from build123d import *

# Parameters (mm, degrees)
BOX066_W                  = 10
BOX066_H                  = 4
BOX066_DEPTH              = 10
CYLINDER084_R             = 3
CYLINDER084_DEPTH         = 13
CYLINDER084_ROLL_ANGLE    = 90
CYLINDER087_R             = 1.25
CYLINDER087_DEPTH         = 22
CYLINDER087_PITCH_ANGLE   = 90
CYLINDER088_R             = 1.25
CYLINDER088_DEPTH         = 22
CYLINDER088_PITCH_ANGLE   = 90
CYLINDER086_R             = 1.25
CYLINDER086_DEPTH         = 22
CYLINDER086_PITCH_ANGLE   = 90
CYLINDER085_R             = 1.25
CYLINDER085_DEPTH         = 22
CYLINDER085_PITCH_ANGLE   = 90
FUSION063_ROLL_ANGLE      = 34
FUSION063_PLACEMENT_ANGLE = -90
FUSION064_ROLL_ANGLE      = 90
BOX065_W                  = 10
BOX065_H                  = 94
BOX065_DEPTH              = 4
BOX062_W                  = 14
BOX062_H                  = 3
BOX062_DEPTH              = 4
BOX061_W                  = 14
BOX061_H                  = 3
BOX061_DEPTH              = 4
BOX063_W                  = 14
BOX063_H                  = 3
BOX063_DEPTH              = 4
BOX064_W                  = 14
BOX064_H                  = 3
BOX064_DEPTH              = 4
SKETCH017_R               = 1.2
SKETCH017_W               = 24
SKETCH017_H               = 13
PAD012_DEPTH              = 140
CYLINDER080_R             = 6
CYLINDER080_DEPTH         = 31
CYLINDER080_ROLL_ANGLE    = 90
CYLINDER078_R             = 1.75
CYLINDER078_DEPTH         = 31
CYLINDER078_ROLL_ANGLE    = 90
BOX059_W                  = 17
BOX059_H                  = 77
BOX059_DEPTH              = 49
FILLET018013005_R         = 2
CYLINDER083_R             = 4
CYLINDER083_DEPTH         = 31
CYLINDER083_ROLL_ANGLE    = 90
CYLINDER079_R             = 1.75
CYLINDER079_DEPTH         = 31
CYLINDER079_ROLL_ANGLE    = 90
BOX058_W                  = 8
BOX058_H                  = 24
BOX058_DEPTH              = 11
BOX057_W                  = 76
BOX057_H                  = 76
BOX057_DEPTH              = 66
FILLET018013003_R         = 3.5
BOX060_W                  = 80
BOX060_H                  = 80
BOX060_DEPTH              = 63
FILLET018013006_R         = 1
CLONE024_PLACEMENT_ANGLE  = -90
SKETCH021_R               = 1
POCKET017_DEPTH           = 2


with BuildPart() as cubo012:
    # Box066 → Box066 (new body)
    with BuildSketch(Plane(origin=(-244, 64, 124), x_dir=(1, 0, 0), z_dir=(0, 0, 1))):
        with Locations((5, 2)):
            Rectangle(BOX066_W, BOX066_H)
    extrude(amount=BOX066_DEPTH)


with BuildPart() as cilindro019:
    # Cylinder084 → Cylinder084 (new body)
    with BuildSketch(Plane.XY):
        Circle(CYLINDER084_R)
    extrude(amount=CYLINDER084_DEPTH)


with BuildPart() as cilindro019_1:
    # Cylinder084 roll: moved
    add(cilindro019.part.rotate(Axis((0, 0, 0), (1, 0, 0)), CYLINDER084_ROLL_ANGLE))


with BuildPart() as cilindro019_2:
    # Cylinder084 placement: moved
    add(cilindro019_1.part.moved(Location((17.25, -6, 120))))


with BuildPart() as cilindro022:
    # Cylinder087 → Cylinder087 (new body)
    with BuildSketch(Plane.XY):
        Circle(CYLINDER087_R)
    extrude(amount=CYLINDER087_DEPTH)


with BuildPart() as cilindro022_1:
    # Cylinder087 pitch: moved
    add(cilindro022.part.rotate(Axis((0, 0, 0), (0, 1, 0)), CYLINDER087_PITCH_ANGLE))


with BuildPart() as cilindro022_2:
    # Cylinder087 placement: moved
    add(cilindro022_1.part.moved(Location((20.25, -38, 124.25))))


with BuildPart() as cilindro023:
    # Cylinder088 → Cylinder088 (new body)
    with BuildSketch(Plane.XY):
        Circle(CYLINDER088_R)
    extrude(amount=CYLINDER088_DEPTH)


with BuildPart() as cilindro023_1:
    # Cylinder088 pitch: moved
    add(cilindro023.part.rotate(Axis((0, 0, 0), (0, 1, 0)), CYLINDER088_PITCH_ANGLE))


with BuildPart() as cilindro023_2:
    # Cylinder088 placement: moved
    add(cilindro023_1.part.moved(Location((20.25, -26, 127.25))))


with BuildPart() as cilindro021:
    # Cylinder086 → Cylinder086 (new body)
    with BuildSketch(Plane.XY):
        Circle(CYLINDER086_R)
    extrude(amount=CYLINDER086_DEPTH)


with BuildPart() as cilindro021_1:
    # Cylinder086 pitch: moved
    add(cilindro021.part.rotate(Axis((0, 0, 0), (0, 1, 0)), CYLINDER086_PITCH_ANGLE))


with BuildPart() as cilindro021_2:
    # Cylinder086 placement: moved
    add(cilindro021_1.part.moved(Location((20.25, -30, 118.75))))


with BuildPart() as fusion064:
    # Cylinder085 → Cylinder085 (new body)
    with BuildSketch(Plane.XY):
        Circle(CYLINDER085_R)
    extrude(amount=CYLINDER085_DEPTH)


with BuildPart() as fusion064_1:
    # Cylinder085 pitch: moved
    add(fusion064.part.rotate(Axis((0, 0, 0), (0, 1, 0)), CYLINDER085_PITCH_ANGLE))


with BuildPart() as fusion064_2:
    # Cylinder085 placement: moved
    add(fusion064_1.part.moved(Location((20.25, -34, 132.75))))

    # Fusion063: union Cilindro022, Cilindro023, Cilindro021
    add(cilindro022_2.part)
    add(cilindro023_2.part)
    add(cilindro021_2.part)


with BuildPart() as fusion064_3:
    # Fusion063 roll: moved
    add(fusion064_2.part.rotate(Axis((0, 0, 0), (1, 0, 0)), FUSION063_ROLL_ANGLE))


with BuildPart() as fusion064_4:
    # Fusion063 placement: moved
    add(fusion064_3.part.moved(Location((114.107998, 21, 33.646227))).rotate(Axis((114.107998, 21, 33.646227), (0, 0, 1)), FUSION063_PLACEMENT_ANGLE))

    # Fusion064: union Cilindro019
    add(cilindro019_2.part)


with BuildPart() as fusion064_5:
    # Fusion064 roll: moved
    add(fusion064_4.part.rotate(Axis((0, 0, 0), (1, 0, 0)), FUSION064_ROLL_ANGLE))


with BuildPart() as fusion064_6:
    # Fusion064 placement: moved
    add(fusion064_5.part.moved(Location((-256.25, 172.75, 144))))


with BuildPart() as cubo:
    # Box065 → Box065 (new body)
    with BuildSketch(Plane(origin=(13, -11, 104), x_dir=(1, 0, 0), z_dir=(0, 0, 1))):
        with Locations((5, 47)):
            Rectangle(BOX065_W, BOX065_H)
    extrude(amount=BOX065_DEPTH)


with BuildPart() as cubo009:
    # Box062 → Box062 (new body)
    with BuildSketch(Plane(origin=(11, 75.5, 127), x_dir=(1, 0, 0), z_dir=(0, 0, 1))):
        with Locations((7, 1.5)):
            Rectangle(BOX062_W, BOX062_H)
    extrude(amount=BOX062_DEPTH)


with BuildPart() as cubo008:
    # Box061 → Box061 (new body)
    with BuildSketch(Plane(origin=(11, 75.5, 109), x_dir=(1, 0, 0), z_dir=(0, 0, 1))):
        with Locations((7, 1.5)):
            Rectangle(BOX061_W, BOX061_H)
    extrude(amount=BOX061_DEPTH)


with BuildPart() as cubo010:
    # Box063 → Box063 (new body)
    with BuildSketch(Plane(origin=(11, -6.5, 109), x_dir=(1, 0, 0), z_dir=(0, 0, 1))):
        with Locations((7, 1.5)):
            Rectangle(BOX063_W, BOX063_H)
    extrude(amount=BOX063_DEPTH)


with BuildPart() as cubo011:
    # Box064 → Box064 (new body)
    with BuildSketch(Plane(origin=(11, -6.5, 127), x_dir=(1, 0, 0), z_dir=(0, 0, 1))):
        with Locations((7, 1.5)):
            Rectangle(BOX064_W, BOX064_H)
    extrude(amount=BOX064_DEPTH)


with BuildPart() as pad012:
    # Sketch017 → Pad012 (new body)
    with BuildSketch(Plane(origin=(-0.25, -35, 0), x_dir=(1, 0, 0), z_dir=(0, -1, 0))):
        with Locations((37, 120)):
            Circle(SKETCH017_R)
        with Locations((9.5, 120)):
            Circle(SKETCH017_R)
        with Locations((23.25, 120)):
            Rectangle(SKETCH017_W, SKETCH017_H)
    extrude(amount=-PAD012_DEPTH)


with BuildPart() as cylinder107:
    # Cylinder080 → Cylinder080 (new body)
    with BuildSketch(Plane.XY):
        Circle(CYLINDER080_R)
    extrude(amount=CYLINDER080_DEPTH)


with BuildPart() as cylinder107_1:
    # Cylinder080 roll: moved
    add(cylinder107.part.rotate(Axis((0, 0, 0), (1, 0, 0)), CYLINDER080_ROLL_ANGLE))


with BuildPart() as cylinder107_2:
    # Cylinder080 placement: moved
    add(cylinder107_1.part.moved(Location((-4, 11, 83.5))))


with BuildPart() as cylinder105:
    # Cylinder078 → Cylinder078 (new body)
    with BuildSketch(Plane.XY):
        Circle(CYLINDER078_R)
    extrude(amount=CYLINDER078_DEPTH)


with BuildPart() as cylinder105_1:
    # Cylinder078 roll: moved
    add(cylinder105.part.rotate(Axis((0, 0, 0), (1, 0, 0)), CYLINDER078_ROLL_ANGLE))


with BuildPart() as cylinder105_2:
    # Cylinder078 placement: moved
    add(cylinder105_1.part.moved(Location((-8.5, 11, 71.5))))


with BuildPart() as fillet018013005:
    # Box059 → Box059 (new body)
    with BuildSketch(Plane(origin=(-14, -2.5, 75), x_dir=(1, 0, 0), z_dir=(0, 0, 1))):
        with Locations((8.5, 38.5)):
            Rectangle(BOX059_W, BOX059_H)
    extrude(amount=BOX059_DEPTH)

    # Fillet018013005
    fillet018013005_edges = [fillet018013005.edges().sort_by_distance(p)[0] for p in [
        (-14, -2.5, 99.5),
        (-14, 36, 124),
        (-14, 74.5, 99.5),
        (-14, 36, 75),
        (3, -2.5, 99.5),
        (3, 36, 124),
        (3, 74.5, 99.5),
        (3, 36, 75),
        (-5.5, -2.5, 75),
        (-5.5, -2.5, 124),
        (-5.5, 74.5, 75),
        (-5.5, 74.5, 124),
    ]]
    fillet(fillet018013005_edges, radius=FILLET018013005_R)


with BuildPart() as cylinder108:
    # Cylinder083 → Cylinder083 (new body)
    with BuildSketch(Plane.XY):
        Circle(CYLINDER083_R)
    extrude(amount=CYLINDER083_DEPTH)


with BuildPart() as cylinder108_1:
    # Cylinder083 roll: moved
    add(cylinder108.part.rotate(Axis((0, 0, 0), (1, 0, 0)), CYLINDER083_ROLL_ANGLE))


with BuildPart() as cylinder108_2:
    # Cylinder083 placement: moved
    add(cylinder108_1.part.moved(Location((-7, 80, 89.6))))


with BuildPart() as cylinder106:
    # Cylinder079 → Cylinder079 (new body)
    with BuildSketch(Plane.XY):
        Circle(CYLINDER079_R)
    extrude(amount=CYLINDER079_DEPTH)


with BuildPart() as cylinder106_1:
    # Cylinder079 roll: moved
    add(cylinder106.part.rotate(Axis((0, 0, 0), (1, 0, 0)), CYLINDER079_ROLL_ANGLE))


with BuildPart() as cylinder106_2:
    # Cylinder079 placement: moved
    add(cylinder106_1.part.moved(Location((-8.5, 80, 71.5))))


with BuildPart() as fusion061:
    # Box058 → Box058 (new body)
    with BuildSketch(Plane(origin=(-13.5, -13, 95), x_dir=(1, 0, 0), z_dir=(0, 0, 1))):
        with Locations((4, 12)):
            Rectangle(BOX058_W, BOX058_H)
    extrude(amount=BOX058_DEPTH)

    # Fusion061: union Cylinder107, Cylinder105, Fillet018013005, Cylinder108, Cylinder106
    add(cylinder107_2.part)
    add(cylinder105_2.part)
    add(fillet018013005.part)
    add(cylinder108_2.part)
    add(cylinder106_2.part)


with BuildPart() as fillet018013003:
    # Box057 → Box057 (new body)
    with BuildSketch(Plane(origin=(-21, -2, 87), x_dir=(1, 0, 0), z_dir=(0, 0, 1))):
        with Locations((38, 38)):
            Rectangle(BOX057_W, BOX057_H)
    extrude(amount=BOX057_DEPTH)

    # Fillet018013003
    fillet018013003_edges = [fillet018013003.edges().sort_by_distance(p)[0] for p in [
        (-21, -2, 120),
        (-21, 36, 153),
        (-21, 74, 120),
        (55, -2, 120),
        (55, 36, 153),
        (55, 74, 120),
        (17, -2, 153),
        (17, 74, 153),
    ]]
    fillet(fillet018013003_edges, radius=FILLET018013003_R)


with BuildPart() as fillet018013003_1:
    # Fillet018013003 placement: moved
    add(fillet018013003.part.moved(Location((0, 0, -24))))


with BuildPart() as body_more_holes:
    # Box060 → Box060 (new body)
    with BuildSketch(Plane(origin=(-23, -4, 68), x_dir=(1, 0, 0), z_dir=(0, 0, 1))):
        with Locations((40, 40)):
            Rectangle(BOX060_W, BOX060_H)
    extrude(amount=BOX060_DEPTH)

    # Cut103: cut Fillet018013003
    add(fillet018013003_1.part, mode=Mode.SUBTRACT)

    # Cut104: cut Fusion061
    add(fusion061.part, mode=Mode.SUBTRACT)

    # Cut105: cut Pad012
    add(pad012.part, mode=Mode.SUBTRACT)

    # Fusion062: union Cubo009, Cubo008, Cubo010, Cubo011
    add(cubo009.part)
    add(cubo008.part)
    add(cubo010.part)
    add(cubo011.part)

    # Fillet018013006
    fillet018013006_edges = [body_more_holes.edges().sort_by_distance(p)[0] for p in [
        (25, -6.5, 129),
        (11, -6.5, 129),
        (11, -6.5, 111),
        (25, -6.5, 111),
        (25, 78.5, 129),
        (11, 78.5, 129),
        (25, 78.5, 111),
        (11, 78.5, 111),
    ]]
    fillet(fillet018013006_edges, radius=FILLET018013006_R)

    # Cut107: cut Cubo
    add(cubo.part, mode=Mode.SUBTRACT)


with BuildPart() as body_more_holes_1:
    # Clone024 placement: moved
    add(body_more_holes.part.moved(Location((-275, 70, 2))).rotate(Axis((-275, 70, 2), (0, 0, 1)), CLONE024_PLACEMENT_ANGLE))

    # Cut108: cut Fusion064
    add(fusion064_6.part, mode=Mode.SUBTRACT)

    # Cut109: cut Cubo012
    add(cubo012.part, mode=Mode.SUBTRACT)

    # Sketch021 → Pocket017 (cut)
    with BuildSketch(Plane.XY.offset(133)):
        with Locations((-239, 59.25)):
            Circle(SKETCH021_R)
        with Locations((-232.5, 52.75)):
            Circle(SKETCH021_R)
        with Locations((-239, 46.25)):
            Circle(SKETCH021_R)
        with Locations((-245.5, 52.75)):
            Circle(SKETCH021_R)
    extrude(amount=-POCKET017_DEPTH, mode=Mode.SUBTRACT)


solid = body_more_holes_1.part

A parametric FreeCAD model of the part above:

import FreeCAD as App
import Part
import Sketcher
from FreeCAD import Vector


def edges_at(feature, points):
    """Names of the edges that pass closest to the given points."""
    edges = feature.Shape.Edges
    near = lambda p: min(range(len(edges)), key=lambda i: edges[i].distToShape(Part.Vertex(*p))[0])
    return sorted({f"Edge{near(p) + 1}" for p in points})


def add_polygon(sketch, points):
    """Adds a closed chain of lines whose ends are joined by coincident constraints."""
    first, n = sketch.GeometryCount, len(points)
    for a, b in zip(points, points[1:] + points[:1]):
        sketch.addGeometry(Part.LineSegment(App.Vector(*a, 0), App.Vector(*b, 0)), False)
    for i in range(n):
        sketch.addConstraint(Sketcher.Constraint("Coincident", first + i, 2, first + (i + 1) % n, 1))

doc = App.newDocument("Part")
params = doc.addObject("Spreadsheet::Sheet", "Params")
for row, (alias, value) in enumerate([
    ("sketch1_width", "10 mm"),
    ("sketch1_height", "4 mm"),
    ("pad1_length", "10 mm"),
    ("sketch2_diameter", "6 mm"),
    ("pad2_length", "13 mm"),
    ("sketch3_diameter", "2.5 mm"),
    ("pad3_length", "22 mm"),
    ("sketch4_diameter", "2.5 mm"),
    ("pad4_length", "22 mm"),
    ("sketch5_diameter", "2.5 mm"),
    ("pad5_length", "22 mm"),
    ("sketch6_diameter", "2.5 mm"),
    ("pad6_length", "22 mm"),
    ("sketch7_width", "10 mm"),
    ("sketch7_height", "94 mm"),
    ("pad7_length", "4 mm"),
    ("sketch8_width", "14 mm"),
    ("sketch8_height", "3 mm"),
    ("pad8_length", "4 mm"),
    ("sketch9_width", "14 mm"),
    ("sketch9_height", "3 mm"),
    ("pad9_length", "4 mm"),
    ("sketch10_width", "14 mm"),
    ("sketch10_height", "3 mm"),
    ("pad10_length", "4 mm"),
    ("sketch11_width", "14 mm"),
    ("sketch11_height", "3 mm"),
    ("pad11_length", "4 mm"),
    ("sketch12_diameter", "2.4 mm"),
    ("sketch12_width", "24 mm"),
    ("sketch12_height", "13 mm"),
    ("pad12_length", "140 mm"),
    ("sketch13_diameter", "12 mm"),
    ("pad13_length", "31 mm"),
    ("sketch14_diameter", "3.5 mm"),
    ("pad14_length", "31 mm"),
    ("sketch15_width", "17 mm"),
    ("sketch15_height", "77 mm"),
    ("pad15_length", "49 mm"),
    ("fillet_radius", "2 mm"),
    ("sketch16_diameter", "8 mm"),
    ("pad16_length", "31 mm"),
    ("sketch17_diameter", "3.5 mm"),
    ("pad17_length", "31 mm"),
    ("sketch18_width", "8 mm"),
    ("sketch18_height", "24 mm"),
    ("pad18_length", "11 mm"),
    ("sketch19_width", "76 mm"),
    ("pad19_length", "66 mm"),
    ("fillet2_radius", "3.5 mm"),
    ("sketch20_width", "80 mm"),
    ("pad20_length", "63 mm"),
    ("fillet3_radius", "1 mm"),
    ("sketch21_diameter", "2 mm"),
    ("pocket1_length", "2 mm"),
], start=1):
    params.set(f"A{row}", alias)
    params.set(f"B{row}", "=" + value)
    params.setAlias(f"B{row}", alias)

body = doc.addObject("PartDesign::Body", "Body")

# Sketch on XY plane
sketch1 = body.newObject("Sketcher::SketchObject", "Sketch")
sketch1.AttachmentSupport = (doc.getObject("XY_Plane"), [""])
sketch1.MapMode = "FlatFace"
sketch1.AttachmentOffset = App.Placement(Vector(0, 0, 124), App.Rotation())
add_polygon(sketch1, [(-244, 68), (-244, 64), (-234, 64), (-234, 68)])  # lines 0-3
sketch1.addConstraint([
    Sketcher.Constraint("Vertical", 0),
    Sketcher.Constraint("Horizontal", 1),
    Sketcher.Constraint("Vertical", 2),
    Sketcher.Constraint("Horizontal", 3),
    Sketcher.Constraint("DistanceX", 1, 1, 1, 2, 10.0),
    Sketcher.Constraint("DistanceY", 0, 2, 0, 1, 4.0),
    Sketcher.Constraint("DistanceX", 0, 2, -1, 1, 244.0),
    Sketcher.Constraint("DistanceY", -1, 1, 0, 2, 64.0),
])
sketch1.setExpression("Constraints[8]", "Params.sketch1_width")
sketch1.setExpression("Constraints[9]", "Params.sketch1_height")
pad1 = body.newObject("PartDesign::Pad", "Pad")
pad1.Profile = sketch1
pad1.setExpression("Length", "Params.pad1_length")
body2 = doc.addObject("PartDesign::Body", "Body001")

# Sketch on XY plane
sketch2 = body2.newObject("Sketcher::SketchObject", "Sketch001")
sketch2.AttachmentSupport = (doc.getObject("XY_Plane001"), [""])
sketch2.MapMode = "FlatFace"
sketch2.addGeometry(Part.Circle(Vector(0, 0, 0), Vector(0, 0, 1), 3), False)
sketch2.addConstraint([
    Sketcher.Constraint("Coincident", 0, 3, -1, 1),
    Sketcher.Constraint("Diameter", 0, 6.0),
])
sketch2.setExpression("Constraints[1]", "Params.sketch2_diameter")
pad2 = body2.newObject("PartDesign::Pad", "Pad001")
pad2.Profile = sketch2
pad2.setExpression("Length", "Params.pad2_length")
body3 = doc.addObject("PartDesign::Body", "Body002")
doc.recompute()

body2.Placement = App.Placement(Vector(0, 0, 0), App.Rotation(Vector(1, 0, 0), 90))
boolean = body3.newObject("PartDesign::Boolean", "Boolean")
boolean.Type = "Fuse"
boolean.addObjects([body2])
body4 = doc.addObject("PartDesign::Body", "Body003")
doc.recompute()

body3.Placement = App.Placement(Vector(17.25, -6, 120), App.Rotation(Vector(0, 0, 1), 0))
boolean2 = body4.newObject("PartDesign::Boolean", "Boolean001")
boolean2.Type = "Fuse"
boolean2.addObjects([body3])
body5 = doc.addObject("PartDesign::Body", "Body004")

# Sketch on XY plane
sketch3 = body5.newObject("Sketcher::SketchObject", "Sketch002")
sketch3.AttachmentSupport = (doc.getObject("XY_Plane004"), [""])
sketch3.MapMode = "FlatFace"
sketch3.addGeometry(Part.Circle(Vector(0, 0, 0), Vector(0, 0, 1), 1.2), False)
sketch3.addConstraint([
    Sketcher.Constraint("Coincident", 0, 3, -1, 1),
    Sketcher.Constraint("Diameter", 0, 2.5),
])
sketch3.setExpression("Constraints[1]", "Params.sketch3_diameter")
pad3 = body5.newObject("PartDesign::Pad", "Pad002")
pad3.Profile = sketch3
pad3.setExpression("Length", "Params.pad3_length")
body6 = doc.addObject("PartDesign::Body", "Body005")
doc.recompute()

body5.Placement = App.Placement(Vector(0, 0, 0), App.Rotation(Vector(0, 1, 0), 90))
boolean3 = body6.newObject("PartDesign::Boolean", "Boolean002")
boolean3.Type = "Fuse"
boolean3.addObjects([body5])
body7 = doc.addObject("PartDesign::Body", "Body006")
doc.recompute()

body6.Placement = App.Placement(Vector(20.25, -38, 124.25), App.Rotation(Vector(0, 0, 1), 0))
boolean4 = body7.newObject("PartDesign::Boolean", "Boolean003")
boolean4.Type = "Fuse"
boolean4.addObjects([body6])
body8 = doc.addObject("PartDesign::Body", "Body007")

# Sketch on XY plane
sketch4 = body8.newObject("Sketcher::SketchObject", "Sketch003")
sketch4.AttachmentSupport = (doc.getObject("XY_Plane007"), [""])
sketch4.MapMode = "FlatFace"
sketch4.addGeometry(Part.Circle(Vector(0, 0, 0), Vector(0, 0, 1), 1.2), False)
sketch4.addConstraint([
    Sketcher.Constraint("Coincident", 0, 3, -1, 1),
    Sketcher.Constraint("Diameter", 0, 2.5),
])
sketch4.setExpression("Constraints[1]", "Params.sketch4_diameter")
pad4 = body8.newObject("PartDesign::Pad", "Pad003")
pad4.Profile = sketch4
pad4.setExpression("Length", "Params.pad4_length")
body9 = doc.addObject("PartDesign::Body", "Body008")
doc.recompute()

body8.Placement = App.Placement(Vector(0, 0, 0), App.Rotation(Vector(0, 1, 0), 90))
boolean5 = body9.newObject("PartDesign::Boolean", "Boolean004")
boolean5.Type = "Fuse"
boolean5.addObjects([body8])
body10 = doc.addObject("PartDesign::Body", "Body009")
doc.recompute()

body9.Placement = App.Placement(Vector(20.25, -26, 127.25), App.Rotation(Vector(0, 0, 1), 0))
boolean6 = body10.newObject("PartDesign::Boolean", "Boolean005")
boolean6.Type = "Fuse"
boolean6.addObjects([body9])
body11 = doc.addObject("PartDesign::Body", "Body010")

# Sketch on XY plane
sketch5 = body11.newObject("Sketcher::SketchObject", "Sketch004")
sketch5.AttachmentSupport = (doc.getObject("XY_Plane010"), [""])
sketch5.MapMode = "FlatFace"
sketch5.addGeometry(Part.Circle(Vector(0, 0, 0), Vector(0, 0, 1), 1.2), False)
sketch5.addConstraint([
    Sketcher.Constraint("Coincident", 0, 3, -1, 1),
    Sketcher.Constraint("Diameter", 0, 2.5),
])
sketch5.setExpression("Constraints[1]", "Params.sketch5_diameter")
pad5 = body11.newObject("PartDesign::Pad", "Pad004")
pad5.Profile = sketch5
pad5.setExpression("Length", "Params.pad5_length")
body12 = doc.addObject("PartDesign::Body", "Body011")
doc.recompute()

body11.Placement = App.Placement(Vector(0, 0, 0), App.Rotation(Vector(0, 1, 0), 90))
boolean7 = body12.newObject("PartDesign::Boolean", "Boolean006")
boolean7.Type = "Fuse"
boolean7.addObjects([body11])
body13 = doc.addObject("PartDesign::Body", "Body012")
doc.recompute()

body12.Placement = App.Placement(Vector(20.25, -30, 118.75), App.Rotation(Vector(0, 0, 1), 0))
boolean8 = body13.newObject("PartDesign::Boolean", "Boolean007")
boolean8.Type = "Fuse"
boolean8.addObjects([body12])
body14 = doc.addObject("PartDesign::Body", "Body013")

# Sketch on XY plane
sketch6 = body14.newObject("Sketcher::SketchObject", "Sketch005")
sketch6.AttachmentSupport = (doc.getObject("XY_Plane013"), [""])
sketch6.MapMode = "FlatFace"
sketch6.addGeometry(Part.Circle(Vector(0, 0, 0), Vector(0, 0, 1), 1.2), False)
sketch6.addConstraint([
    Sketcher.Constraint("Coincident", 0, 3, -1, 1),
    Sketcher.Constraint("Diameter", 0, 2.5),
])
sketch6.setExpression("Constraints[1]", "Params.sketch6_diameter")
pad6 = body14.newObject("PartDesign::Pad", "Pad005")
pad6.Profile = sketch6
pad6.setExpression("Length", "Params.pad6_length")
body15 = doc.addObject("PartDesign::Body", "Body014")
doc.recompute()

body14.Placement = App.Placement(Vector(0, 0, 0), App.Rotation(Vector(0, 1, 0), 90))
boolean9 = body15.newObject("PartDesign::Boolean", "Boolean008")
boolean9.Type = "Fuse"
boolean9.addObjects([body14])
body16 = doc.addObject("PartDesign::Body", "Body015")
body16.AllowCompound = True
doc.recompute()

body15.Placement = App.Placement(Vector(20.25, -34, 132.75), App.Rotation(Vector(0, 0, 1), 0))
boolean10 = body16.newObject("PartDesign::Boolean", "Boolean009")
boolean10.Type = "Fuse"
boolean10.addObjects([body15])
doc.recompute()

boolean11 = body16.newObject("PartDesign::Boolean", "Boolean010")
boolean11.Type = "Fuse"
boolean11.addObjects([body7])
doc.recompute()

boolean12 = body16.newObject("PartDesign::Boolean", "Boolean011")
boolean12.Type = "Fuse"
boolean12.addObjects([body10])
doc.recompute()

boolean13 = body16.newObject("PartDesign::Boolean", "Boolean012")
boolean13.Type = "Fuse"
boolean13.addObjects([body13])
body17 = doc.addObject("PartDesign::Body", "Body016")
body17.AllowCompound = True
doc.recompute()

body16.Placement = App.Placement(Vector(0, 0, 0), App.Rotation(Vector(1, 0, 0), 34))
boolean14 = body17.newObject("PartDesign::Boolean", "Boolean013")
boolean14.Type = "Fuse"
boolean14.addObjects([body16])
body18 = doc.addObject("PartDesign::Body", "Body017")
body18.AllowCompound = True
doc.recompute()

body17.Placement = App.Placement(Vector(114.107998, 21, 33.646227), App.Rotation(Vector(0, 0, 1), 270))
boolean15 = body18.newObject("PartDesign::Boolean", "Boolean014")
boolean15.Type = "Fuse"
boolean15.addObjects([body17])
doc.recompute()

boolean16 = body18.newObject("PartDesign::Boolean", "Boolean015")
boolean16.Type = "Fuse"
boolean16.addObjects([body4])
body19 = doc.addObject("PartDesign::Body", "Body018")
body19.AllowCompound = True
doc.recompute()

body18.Placement = App.Placement(Vector(0, 0, 0), App.Rotation(Vector(1, 0, 0), 90))
boolean17 = body19.newObject("PartDesign::Boolean", "Boolean016")
boolean17.Type = "Fuse"
boolean17.addObjects([body18])
body20 = doc.addObject("PartDesign::Body", "Body019")
body20.AllowCompound = True
doc.recompute()

body19.Placement = App.Placement(Vector(-256.25, 172.75, 144), App.Rotation(Vector(0, 0, 1), 0))
boolean18 = body20.newObject("PartDesign::Boolean", "Boolean017")
boolean18.Type = "Fuse"
boolean18.addObjects([body19])
body21 = doc.addObject("PartDesign::Body", "Body020")

# Sketch on XY plane
sketch7 = body21.newObject("Sketcher::SketchObject", "Sketch006")
sketch7.AttachmentSupport = (doc.getObject("XY_Plane020"), [""])
sketch7.MapMode = "FlatFace"
sketch7.AttachmentOffset = App.Placement(Vector(0, 0, 104), App.Rotation())
add_polygon(sketch7, [(13, 83), (13, -11), (23, -11), (23, 83)])  # lines 0-3
sketch7.addConstraint([
    Sketcher.Constraint("Vertical", 0),
    Sketcher.Constraint("Horizontal", 1),
    Sketcher.Constraint("Vertical", 2),
    Sketcher.Constraint("Horizontal", 3),
    Sketcher.Constraint("DistanceX", 1, 1, 1, 2, 10.0),
    Sketcher.Constraint("DistanceY", 0, 2, 0, 1, 94.0),
    Sketcher.Constraint("DistanceX", -1, 1, 0, 2, 13.0),
    Sketcher.Constraint("DistanceY", 0, 2, -1, 1, 11.0),
])
sketch7.setExpression("Constraints[8]", "Params.sketch7_width")
sketch7.setExpression("Constraints[9]", "Params.sketch7_height")
pad7 = body21.newObject("PartDesign::Pad", "Pad006")
pad7.Profile = sketch7
pad7.setExpression("Length", "Params.pad7_length")
body22 = doc.addObject("PartDesign::Body", "Body021")

# Sketch on XY plane
sketch8 = body22.newObject("Sketcher::SketchObject", "Sketch007")
sketch8.AttachmentSupport = (doc.getObject("XY_Plane021"), [""])
sketch8.MapMode = "FlatFace"
sketch8.AttachmentOffset = App.Placement(Vector(0, 0, 127), App.Rotation())
add_polygon(sketch8, [(11, 78.5), (11, 75.5), (25, 75.5), (25, 78.5)])  # lines 0-3
sketch8.addConstraint([
    Sketcher.Constraint("Vertical", 0),
    Sketcher.Constraint("Horizontal", 1),
    Sketcher.Constraint("Vertical", 2),
    Sketcher.Constraint("Horizontal", 3),
    Sketcher.Constraint("DistanceX", 1, 1, 1, 2, 14.0),
    Sketcher.Constraint("DistanceY", 0, 2, 0, 1, 3.0),
    Sketcher.Constraint("DistanceX", -1, 1, 0, 2, 11.0),
    Sketcher.Constraint("DistanceY", -1, 1, 0, 2, 75.5),
])
sketch8.setExpression("Constraints[8]", "Params.sketch8_width")
sketch8.setExpression("Constraints[9]", "Params.sketch8_height")
pad8 = body22.newObject("PartDesign::Pad", "Pad007")
pad8.Profile = sketch8
pad8.setExpression("Length", "Params.pad8_length")
body23 = doc.addObject("PartDesign::Body", "Body022")

# Sketch on XY plane
sketch9 = body23.newObject("Sketcher::SketchObject", "Sketch008")
sketch9.AttachmentSupport = (doc.getObject("XY_Plane022"), [""])
sketch9.MapMode = "FlatFace"
sketch9.AttachmentOffset = App.Placement(Vector(0, 0, 109), App.Rotation())
add_polygon(sketch9, [(11, 78.5), (11, 75.5), (25, 75.5), (25, 78.5)])  # lines 0-3
sketch9.addConstraint([
    Sketcher.Constraint("Vertical", 0),
    Sketcher.Constraint("Horizontal", 1),
    Sketcher.Constraint("Vertical", 2),
    Sketcher.Constraint("Horizontal", 3),
    Sketcher.Constraint("DistanceX", 1, 1, 1, 2, 14.0),
    Sketcher.Constraint("DistanceY", 0, 2, 0, 1, 3.0),
    Sketcher.Constraint("DistanceX", -1, 1, 0, 2, 11.0),
    Sketcher.Constraint("DistanceY", -1, 1, 0, 2, 75.5),
])
sketch9.setExpression("Constraints[8]", "Params.sketch9_width")
sketch9.setExpression("Constraints[9]", "Params.sketch9_height")
pad9 = body23.newObject("PartDesign::Pad", "Pad008")
pad9.Profile = sketch9
pad9.setExpression("Length", "Params.pad9_length")
body24 = doc.addObject("PartDesign::Body", "Body023")

# Sketch on XY plane
sketch10 = body24.newObject("Sketcher::SketchObject", "Sketch009")
sketch10.AttachmentSupport = (doc.getObject("XY_Plane023"), [""])
sketch10.MapMode = "FlatFace"
sketch10.AttachmentOffset = App.Placement(Vector(0, 0, 109), App.Rotation())
add_polygon(sketch10, [(11, -3.5), (11, -6.5), (25, -6.5), (25, -3.5)])  # lines 0-3
sketch10.addConstraint([
    Sketcher.Constraint("Vertical", 0),
    Sketcher.Constraint("Horizontal", 1),
    Sketcher.Constraint("Vertical", 2),
    Sketcher.Constraint("Horizontal", 3),
    Sketcher.Constraint("DistanceX", 1, 1, 1, 2, 14.0),
    Sketcher.Constraint("DistanceY", 0, 2, 0, 1, 3.0),
    Sketcher.Constraint("DistanceX", -1, 1, 0, 2, 11.0),
    Sketcher.Constraint("DistanceY", 0, 2, -1, 1, 6.5),
])
sketch10.setExpression("Constraints[8]", "Params.sketch10_width")
sketch10.setExpression("Constraints[9]", "Params.sketch10_height")
pad10 = body24.newObject("PartDesign::Pad", "Pad009")
pad10.Profile = sketch10
pad10.setExpression("Length", "Params.pad10_length")
body25 = doc.addObject("PartDesign::Body", "Body024")

# Sketch on XY plane
sketch11 = body25.newObject("Sketcher::SketchObject", "Sketch010")
sketch11.AttachmentSupport = (doc.getObject("XY_Plane024"), [""])
sketch11.MapMode = "FlatFace"
sketch11.AttachmentOffset = App.Placement(Vector(0, 0, 127), App.Rotation())
add_polygon(sketch11, [(11, -3.5), (11, -6.5), (25, -6.5), (25, -3.5)])  # lines 0-3
sketch11.addConstraint([
    Sketcher.Constraint("Vertical", 0),
    Sketcher.Constraint("Horizontal", 1),
    Sketcher.Constraint("Vertical", 2),
    Sketcher.Constraint("Horizontal", 3),
    Sketcher.Constraint("DistanceX", 1, 1, 1, 2, 14.0),
    Sketcher.Constraint("DistanceY", 0, 2, 0, 1, 3.0),
    Sketcher.Constraint("DistanceX", -1, 1, 0, 2, 11.0),
    Sketcher.Constraint("DistanceY", 0, 2, -1, 1, 6.5),
])
sketch11.setExpression("Constraints[8]", "Params.sketch11_width")
sketch11.setExpression("Constraints[9]", "Params.sketch11_height")
pad11 = body25.newObject("PartDesign::Pad", "Pad010")
pad11.Profile = sketch11
pad11.setExpression("Length", "Params.pad11_length")
body26 = doc.addObject("PartDesign::Body", "Body025")
body26.AllowCompound = True

# Sketch on XZ plane
sketch12 = body26.newObject("Sketcher::SketchObject", "Sketch011")
sketch12.AttachmentSupport = (doc.getObject("XZ_Plane025"), [""])
sketch12.MapMode = "FlatFace"
sketch12.AttachmentOffset = App.Placement(Vector(0, 0, 35), App.Rotation())
sketch12.addGeometry(Part.Circle(Vector(36.8, 120, 0), Vector(0, 0, 1), 1.2), False)  # 0
sketch12.addGeometry(Part.Circle(Vector(9.2, 120, 0), Vector(0, 0, 1), 1.2), False)  # 1
add_polygon(sketch12, [(11, 126.5), (11, 113.5), (35, 113.5), (35, 126.5)])  # lines 2-5
sketch12.addConstraint([
    Sketcher.Constraint("Vertical", 2),
    Sketcher.Constraint("Horizontal", 3),
    Sketcher.Constraint("Vertical", 4),
    Sketcher.Constraint("Horizontal", 5),
    Sketcher.Constraint("Equal", 0, 1),
    Sketcher.Constraint("Horizontal", 0, 3, 1, 3),
    Sketcher.Constraint("Diameter", 0, 2.4),
    Sketcher.Constraint("DistanceX", 3, 1, 3, 2, 24.0),
    Sketcher.Constraint("DistanceY", 2, 2, 2, 1, 13.0),
    Sketcher.Constraint("DistanceY", -1, 1, 0, 3, 120.0),
    Sketcher.Constraint("DistanceX", -1, 1, 2, 2, 11.0),
    Sketcher.Constraint("DistanceY", -1, 1, 2, 2, 113.5),
    Sketcher.Constraint("DistanceX", 1, 3, 0, 3, 27.5),
    Sketcher.Constraint("DistanceX", -1, 1, 0, 3, 36.75),
])
sketch12.setExpression("Constraints[10]", "Params.sketch12_diameter")
sketch12.setExpression("Constraints[11]", "Params.sketch12_width")
sketch12.setExpression("Constraints[12]", "Params.sketch12_height")
pad12 = body26.newObject("PartDesign::Pad", "Pad011")
pad12.Profile = sketch12
pad12.setExpression("Length", "Params.pad12_length")
pad12.Reversed = True
body27 = doc.addObject("PartDesign::Body", "Body026")

# Sketch on XY plane
sketch13 = body27.newObject("Sketcher::SketchObject", "Sketch012")
sketch13.AttachmentSupport = (doc.getObject("XY_Plane026"), [""])
sketch13.MapMode = "FlatFace"
sketch13.addGeometry(Part.Circle(Vector(0, 0, 0), Vector(0, 0, 1), 6), False)
sketch13.addConstraint([
    Sketcher.Constraint("Coincident", 0, 3, -1, 1),
    Sketcher.Constraint("Diameter", 0, 12.0),
])
sketch13.setExpression("Constraints[1]", "Params.sketch13_diameter")
pad13 = body27.newObject("PartDesign::Pad", "Pad012")
pad13.Profile = sketch13
pad13.setExpression("Length", "Params.pad13_length")
body28 = doc.addObject("PartDesign::Body", "Body027")
doc.recompute()

body27.Placement = App.Placement(Vector(0, 0, 0), App.Rotation(Vector(1, 0, 0), 90))
boolean19 = body28.newObject("PartDesign::Boolean", "Boolean018")
boolean19.Type = "Fuse"
boolean19.addObjects([body27])
body29 = doc.addObject("PartDesign::Body", "Body028")
doc.recompute()

body28.Placement = App.Placement(Vector(-4, 11, 83.5), App.Rotation(Vector(0, 0, 1), 0))
boolean20 = body29.newObject("PartDesign::Boolean", "Boolean019")
boolean20.Type = "Fuse"
boolean20.addObjects([body28])
body30 = doc.addObject("PartDesign::Body", "Body029")

# Sketch on XY plane
sketch14 = body30.newObject("Sketcher::SketchObject", "Sketch013")
sketch14.AttachmentSupport = (doc.getObject("XY_Plane029"), [""])
sketch14.MapMode = "FlatFace"
sketch14.addGeometry(Part.Circle(Vector(0, 0, 0), Vector(0, 0, 1), 1.8), False)
sketch14.addConstraint([
    Sketcher.Constraint("Coincident", 0, 3, -1, 1),
    Sketcher.Constraint("Diameter", 0, 3.5),
])
sketch14.setExpression("Constraints[1]", "Params.sketch14_diameter")
pad14 = body30.newObject("PartDesign::Pad", "Pad013")
pad14.Profile = sketch14
pad14.setExpression("Length", "Params.pad14_length")
body31 = doc.addObject("PartDesign::Body", "Body030")
doc.recompute()

body30.Placement = App.Placement(Vector(0, 0, 0), App.Rotation(Vector(1, 0, 0), 90))
boolean21 = body31.newObject("PartDesign::Boolean", "Boolean020")
boolean21.Type = "Fuse"
boolean21.addObjects([body30])
body32 = doc.addObject("PartDesign::Body", "Body031")
doc.recompute()

body31.Placement = App.Placement(Vector(-8.5, 11, 71.5), App.Rotation(Vector(0, 0, 1), 0))
boolean22 = body32.newObject("PartDesign::Boolean", "Boolean021")
boolean22.Type = "Fuse"
boolean22.addObjects([body31])
body33 = doc.addObject("PartDesign::Body", "Body032")

# Sketch on XY plane
sketch15 = body33.newObject("Sketcher::SketchObject", "Sketch014")
sketch15.AttachmentSupport = (doc.getObject("XY_Plane032"), [""])
sketch15.MapMode = "FlatFace"
sketch15.AttachmentOffset = App.Placement(Vector(0, 0, 75), App.Rotation())
add_polygon(sketch15, [(-14, 74), (-14, -2), (3, -2), (3, 74)])  # lines 0-3
sketch15.addConstraint([
    Sketcher.Constraint("Vertical", 0),
    Sketcher.Constraint("Horizontal", 1),
    Sketcher.Constraint("Vertical", 2),
    Sketcher.Constraint("Horizontal", 3),
    Sketcher.Constraint("DistanceX", 1, 1, 1, 2, 17.0),
    Sketcher.Constraint("DistanceY", 0, 2, 0, 1, 77.0),
    Sketcher.Constraint("DistanceX", 0, 2, -1, 1, 14.0),
    Sketcher.Constraint("DistanceY", 0, 2, -1, 1, 2.5),
])
sketch15.setExpression("Constraints[8]", "Params.sketch15_width")
sketch15.setExpression("Constraints[9]", "Params.sketch15_height")
pad15 = body33.newObject("PartDesign::Pad", "Pad014")
pad15.Profile = sketch15
pad15.setExpression("Length", "Params.pad15_length")
doc.recompute()

fillet = body33.newObject("PartDesign::Fillet", "Fillet")
fillet.Base = (pad15, ["Edge1"])
fillet.UseAllEdges = True
fillet.setExpression("Radius", "Params.fillet_radius")
body34 = doc.addObject("PartDesign::Body", "Body033")

# Sketch on XY plane
sketch16 = body34.newObject("Sketcher::SketchObject", "Sketch015")
sketch16.AttachmentSupport = (doc.getObject("XY_Plane033"), [""])
sketch16.MapMode = "FlatFace"
sketch16.addGeometry(Part.Circle(Vector(0, 0, 0), Vector(0, 0, 1), 4), False)
sketch16.addConstraint([
    Sketcher.Constraint("Coincident", 0, 3, -1, 1),
    Sketcher.Constraint("Diameter", 0, 8.0),
])
sketch16.setExpression("Constraints[1]", "Params.sketch16_diameter")
pad16 = body34.newObject("PartDesign::Pad", "Pad015")
pad16.Profile = sketch16
pad16.setExpression("Length", "Params.pad16_length")
body35 = doc.addObject("PartDesign::Body", "Body034")
doc.recompute()

body34.Placement = App.Placement(Vector(0, 0, 0), App.Rotation(Vector(1, 0, 0), 90))
boolean23 = body35.newObject("PartDesign::Boolean", "Boolean022")
boolean23.Type = "Fuse"
boolean23.addObjects([body34])
body36 = doc.addObject("PartDesign::Body", "Body035")
doc.recompute()

body35.Placement = App.Placement(Vector(-7, 80, 89.6), App.Rotation(Vector(0, 0, 1), 0))
boolean24 = body36.newObject("PartDesign::Boolean", "Boolean023")
boolean24.Type = "Fuse"
boolean24.addObjects([body35])
body37 = doc.addObject("PartDesign::Body", "Body036")

# Sketch on XY plane
sketch17 = body37.newObject("Sketcher::SketchObject", "Sketch016")
sketch17.AttachmentSupport = (doc.getObject("XY_Plane036"), [""])
sketch17.MapMode = "FlatFace"
sketch17.addGeometry(Part.Circle(Vector(0, 0, 0), Vector(0, 0, 1), 1.8), False)
sketch17.addConstraint([
    Sketcher.Constraint("Coincident", 0, 3, -1, 1),
    Sketcher.Constraint("Diameter", 0, 3.5),
])
sketch17.setExpression("Constraints[1]", "Params.sketch17_diameter")
pad17 = body37.newObject("PartDesign::Pad", "Pad016")
pad17.Profile = sketch17
pad17.setExpression("Length", "Params.pad17_length")
body38 = doc.addObject("PartDesign::Body", "Body037")
doc.recompute()

body37.Placement = App.Placement(Vector(0, 0, 0), App.Rotation(Vector(1, 0, 0), 90))
boolean25 = body38.newObject("PartDesign::Boolean", "Boolean024")
boolean25.Type = "Fuse"
boolean25.addObjects([body37])
body39 = doc.addObject("PartDesign::Body", "Body038")
doc.recompute()

body38.Placement = App.Placement(Vector(-8.5, 80, 71.5), App.Rotation(Vector(0, 0, 1), 0))
boolean26 = body39.newObject("PartDesign::Boolean", "Boolean025")
boolean26.Type = "Fuse"
boolean26.addObjects([body38])
body40 = doc.addObject("PartDesign::Body", "Body039")
body40.AllowCompound = True

# Sketch on XY plane
sketch18 = body40.newObject("Sketcher::SketchObject", "Sketch017")
sketch18.AttachmentSupport = (doc.getObject("XY_Plane039"), [""])
sketch18.MapMode = "FlatFace"
sketch18.AttachmentOffset = App.Placement(Vector(0, 0, 95), App.Rotation())
add_polygon(sketch18, [(-14, 11), (-14, -13), (-6, -13), (-6, 11)])  # lines 0-3
sketch18.addConstraint([
    Sketcher.Constraint("Vertical", 0),
    Sketcher.Constraint("Horizontal", 1),
    Sketcher.Constraint("Vertical", 2),
    Sketcher.Constraint("Horizontal", 3),
    Sketcher.Constraint("DistanceX", 1, 1, 1, 2, 8.0),
    Sketcher.Constraint("DistanceY", 0, 2, 0, 1, 24.0),
    Sketcher.Constraint("DistanceY", 0, 2, -1, 1, 13.0),
    Sketcher.Constraint("DistanceX", 0, 2, -1, 1, 13.5),
])
sketch18.setExpression("Constraints[8]", "Params.sketch18_width")
sketch18.setExpression("Constraints[9]", "Params.sketch18_height")
pad18 = body40.newObject("PartDesign::Pad", "Pad017")
pad18.Profile = sketch18
pad18.setExpression("Length", "Params.pad18_length")
doc.recompute()

boolean27 = body40.newObject("PartDesign::Boolean", "Boolean026")
boolean27.Type = "Fuse"
boolean27.addObjects([body29])
doc.recompute()

boolean28 = body40.newObject("PartDesign::Boolean", "Boolean027")
boolean28.Type = "Fuse"
boolean28.addObjects([body32])
doc.recompute()

boolean29 = body40.newObject("PartDesign::Boolean", "Boolean028")
boolean29.Type = "Fuse"
boolean29.addObjects([body33])
doc.recompute()

boolean30 = body40.newObject("PartDesign::Boolean", "Boolean029")
boolean30.Type = "Fuse"
boolean30.addObjects([body36])
doc.recompute()

boolean31 = body40.newObject("PartDesign::Boolean", "Boolean030")
boolean31.Type = "Fuse"
boolean31.addObjects([body39])
body41 = doc.addObject("PartDesign::Body", "Body040")

# Sketch on XY plane
sketch19 = body41.newObject("Sketcher::SketchObject", "Sketch018")
sketch19.AttachmentSupport = (doc.getObject("XY_Plane040"), [""])
sketch19.MapMode = "FlatFace"
sketch19.AttachmentOffset = App.Placement(Vector(0, 0, 87), App.Rotation())
add_polygon(sketch19, [(-21, 74), (-21, -2), (55, -2), (55, 74)])  # lines 0-3
sketch19.addConstraint([
    Sketcher.Constraint("Vertical", 0),
    Sketcher.Constraint("Horizontal", 1),
    Sketcher.Constraint("Vertical", 2),
    Sketcher.Constraint("Horizontal", 3),
    Sketcher.Constraint("Equal", 3, 0),
    Sketcher.Constraint("DistanceX", 1, 1, 1, 2, 76.0),
    Sketcher.Constraint("DistanceX", 0, 2, -1, 1, 21.0),
    Sketcher.Constraint("DistanceY", 0, 2, -1, 1, 2.0),
])
sketch19.setExpression("Constraints[9]", "Params.sketch19_width")
pad19 = body41.newObject("PartDesign::Pad", "Pad018")
pad19.Profile = sketch19
pad19.setExpression("Length", "Params.pad19_length")
doc.recompute()

fillet2 = body41.newObject("PartDesign::Fillet", "Fillet001")
fillet2.Base = (pad19, edges_at(pad19, [
    (-21, -2, 120),
    (-21, 36, 153),
    (-21, 74, 120),
    (55, -2, 120),
    (55, 36, 153),
    (55, 74, 120),
    (17, -2, 153),
    (17, 74, 153),
]))
fillet2.setExpression("Radius", "Params.fillet2_radius")
body42 = doc.addObject("PartDesign::Body", "Body041")
doc.recompute()

body41.Placement = App.Placement(Vector(0, 0, -24), App.Rotation(Vector(0, 0, 1), 0))
boolean32 = body42.newObject("PartDesign::Boolean", "Boolean031")
boolean32.Type = "Fuse"
boolean32.addObjects([body41])
body43 = doc.addObject("PartDesign::Body", "Body042")

# Sketch on XY plane
sketch20 = body43.newObject("Sketcher::SketchObject", "Sketch019")
sketch20.AttachmentSupport = (doc.getObject("XY_Plane042"), [""])
sketch20.MapMode = "FlatFace"
sketch20.AttachmentOffset = App.Placement(Vector(0, 0, 68), App.Rotation())
add_polygon(sketch20, [(-23, 76), (-23, -4), (57, -4), (57, 76)])  # lines 0-3
sketch20.addConstraint([
    Sketcher.Constraint("Vertical", 0),
    Sketcher.Constraint("Horizontal", 1),
    Sketcher.Constraint("Vertical", 2),
    Sketcher.Constraint("Horizontal", 3),
    Sketcher.Constraint("Equal", 3, 0),
    Sketcher.Constraint("DistanceX", 1, 1, 1, 2, 80.0),
    Sketcher.Constraint("DistanceX", 0, 2, -1, 1, 23.0),
    Sketcher.Constraint("DistanceY", 0, 2, -1, 1, 4.0),
])
sketch20.setExpression("Constraints[9]", "Params.sketch20_width")
pad20 = body43.newObject("PartDesign::Pad", "Pad019")
pad20.Profile = sketch20
pad20.setExpression("Length", "Params.pad20_length")
doc.recompute()

boolean33 = body43.newObject("PartDesign::Boolean", "Boolean032")
boolean33.Type = "Cut"
boolean33.addObjects([body42])
doc.recompute()

boolean34 = body43.newObject("PartDesign::Boolean", "Boolean033")
boolean34.Type = "Cut"
boolean34.addObjects([body40])
doc.recompute()

boolean35 = body43.newObject("PartDesign::Boolean", "Boolean034")
boolean35.Type = "Cut"
boolean35.addObjects([body26])
doc.recompute()

boolean36 = body43.newObject("PartDesign::Boolean", "Boolean035")
boolean36.Type = "Fuse"
boolean36.addObjects([body22])
doc.recompute()

boolean37 = body43.newObject("PartDesign::Boolean", "Boolean036")
boolean37.Type = "Fuse"
boolean37.addObjects([body23])
doc.recompute()

boolean38 = body43.newObject("PartDesign::Boolean", "Boolean037")
boolean38.Type = "Fuse"
boolean38.addObjects([body24])
doc.recompute()

boolean39 = body43.newObject("PartDesign::Boolean", "Boolean038")
boolean39.Type = "Fuse"
boolean39.addObjects([body25])
doc.recompute()

fillet3 = body43.newObject("PartDesign::Fillet", "Fillet002")
fillet3.Base = (boolean39, edges_at(boolean39, [
    (25, -6.5, 129),
    (11, -6.5, 129),
    (11, -6.5, 111),
    (25, -6.5, 111),
    (25, 78.5, 129),
    (11, 78.5, 129),
    (25, 78.5, 111),
    (11, 78.5, 111),
]))
fillet3.setExpression("Radius", "Params.fillet3_radius")
doc.recompute()

boolean40 = body43.newObject("PartDesign::Boolean", "Boolean039")
boolean40.Type = "Cut"
boolean40.addObjects([body21])
body44 = doc.addObject("PartDesign::Body", "Body043")
doc.recompute()

body43.Placement = App.Placement(Vector(-275, 70, 2), App.Rotation(Vector(0, 0, 1), 270))
boolean41 = body44.newObject("PartDesign::Boolean", "Boolean040")
boolean41.Type = "Fuse"
boolean41.addObjects([body43])
doc.recompute()

boolean42 = body44.newObject("PartDesign::Boolean", "Boolean041")
boolean42.Type = "Cut"
boolean42.addObjects([body20])
doc.recompute()

boolean43 = body44.newObject("PartDesign::Boolean", "Boolean042")
boolean43.Type = "Cut"
boolean43.addObjects([body])

# Sketch on XY plane
sketch21 = body44.newObject("Sketcher::SketchObject", "Sketch020")
sketch21.AttachmentSupport = (doc.getObject("XY_Plane043"), [""])
sketch21.MapMode = "FlatFace"
sketch21.AttachmentOffset = App.Placement(Vector(0, 0, 133), App.Rotation())
sketch21.addGeometry([
    Part.Circle(Vector(-239, 59.2, 0), Vector(0, 0, 1), 1),
    Part.Circle(Vector(-232.5, 52.8, 0), Vector(0, 0, 1), 1),
    Part.Circle(Vector(-239, 46.2, 0), Vector(0, 0, 1), 1),
    Part.Circle(Vector(-245.5, 52.8, 0), Vector(0, 0, 1), 1),
], False)
sketch21.addConstraint([
    Sketcher.Constraint("Equal", 0, 1),
    Sketcher.Constraint("Equal", 1, 2),
    Sketcher.Constraint("Equal", 2, 3),
    Sketcher.Constraint("Horizontal", 1, 3, 3, 3),
    Sketcher.Constraint("Vertical", 0, 3, 2, 3),
    Sketcher.Constraint("Diameter", 0, 2.0),
    Sketcher.Constraint("DistanceX", 0, 3, -1, 1, 239.0),
    Sketcher.Constraint("DistanceY", 2, 3, 0, 3, 13.0),
    Sketcher.Constraint("DistanceX", 3, 3, 1, 3, 13.0),
    Sketcher.Constraint("DistanceX", 1, 3, -1, 1, 232.5),
    Sketcher.Constraint("DistanceY", 1, 3, 0, 3, 6.5),
    Sketcher.Constraint("DistanceY", -1, 1, 0, 3, 59.25),
])
sketch21.setExpression("Constraints[5]", "Params.sketch21_diameter")
pocket1 = body44.newObject("PartDesign::Pocket", "Pocket")
pocket1.Profile = sketch21
pocket1.setExpression("Length", "Params.pocket1_length")

doc.recompute()
